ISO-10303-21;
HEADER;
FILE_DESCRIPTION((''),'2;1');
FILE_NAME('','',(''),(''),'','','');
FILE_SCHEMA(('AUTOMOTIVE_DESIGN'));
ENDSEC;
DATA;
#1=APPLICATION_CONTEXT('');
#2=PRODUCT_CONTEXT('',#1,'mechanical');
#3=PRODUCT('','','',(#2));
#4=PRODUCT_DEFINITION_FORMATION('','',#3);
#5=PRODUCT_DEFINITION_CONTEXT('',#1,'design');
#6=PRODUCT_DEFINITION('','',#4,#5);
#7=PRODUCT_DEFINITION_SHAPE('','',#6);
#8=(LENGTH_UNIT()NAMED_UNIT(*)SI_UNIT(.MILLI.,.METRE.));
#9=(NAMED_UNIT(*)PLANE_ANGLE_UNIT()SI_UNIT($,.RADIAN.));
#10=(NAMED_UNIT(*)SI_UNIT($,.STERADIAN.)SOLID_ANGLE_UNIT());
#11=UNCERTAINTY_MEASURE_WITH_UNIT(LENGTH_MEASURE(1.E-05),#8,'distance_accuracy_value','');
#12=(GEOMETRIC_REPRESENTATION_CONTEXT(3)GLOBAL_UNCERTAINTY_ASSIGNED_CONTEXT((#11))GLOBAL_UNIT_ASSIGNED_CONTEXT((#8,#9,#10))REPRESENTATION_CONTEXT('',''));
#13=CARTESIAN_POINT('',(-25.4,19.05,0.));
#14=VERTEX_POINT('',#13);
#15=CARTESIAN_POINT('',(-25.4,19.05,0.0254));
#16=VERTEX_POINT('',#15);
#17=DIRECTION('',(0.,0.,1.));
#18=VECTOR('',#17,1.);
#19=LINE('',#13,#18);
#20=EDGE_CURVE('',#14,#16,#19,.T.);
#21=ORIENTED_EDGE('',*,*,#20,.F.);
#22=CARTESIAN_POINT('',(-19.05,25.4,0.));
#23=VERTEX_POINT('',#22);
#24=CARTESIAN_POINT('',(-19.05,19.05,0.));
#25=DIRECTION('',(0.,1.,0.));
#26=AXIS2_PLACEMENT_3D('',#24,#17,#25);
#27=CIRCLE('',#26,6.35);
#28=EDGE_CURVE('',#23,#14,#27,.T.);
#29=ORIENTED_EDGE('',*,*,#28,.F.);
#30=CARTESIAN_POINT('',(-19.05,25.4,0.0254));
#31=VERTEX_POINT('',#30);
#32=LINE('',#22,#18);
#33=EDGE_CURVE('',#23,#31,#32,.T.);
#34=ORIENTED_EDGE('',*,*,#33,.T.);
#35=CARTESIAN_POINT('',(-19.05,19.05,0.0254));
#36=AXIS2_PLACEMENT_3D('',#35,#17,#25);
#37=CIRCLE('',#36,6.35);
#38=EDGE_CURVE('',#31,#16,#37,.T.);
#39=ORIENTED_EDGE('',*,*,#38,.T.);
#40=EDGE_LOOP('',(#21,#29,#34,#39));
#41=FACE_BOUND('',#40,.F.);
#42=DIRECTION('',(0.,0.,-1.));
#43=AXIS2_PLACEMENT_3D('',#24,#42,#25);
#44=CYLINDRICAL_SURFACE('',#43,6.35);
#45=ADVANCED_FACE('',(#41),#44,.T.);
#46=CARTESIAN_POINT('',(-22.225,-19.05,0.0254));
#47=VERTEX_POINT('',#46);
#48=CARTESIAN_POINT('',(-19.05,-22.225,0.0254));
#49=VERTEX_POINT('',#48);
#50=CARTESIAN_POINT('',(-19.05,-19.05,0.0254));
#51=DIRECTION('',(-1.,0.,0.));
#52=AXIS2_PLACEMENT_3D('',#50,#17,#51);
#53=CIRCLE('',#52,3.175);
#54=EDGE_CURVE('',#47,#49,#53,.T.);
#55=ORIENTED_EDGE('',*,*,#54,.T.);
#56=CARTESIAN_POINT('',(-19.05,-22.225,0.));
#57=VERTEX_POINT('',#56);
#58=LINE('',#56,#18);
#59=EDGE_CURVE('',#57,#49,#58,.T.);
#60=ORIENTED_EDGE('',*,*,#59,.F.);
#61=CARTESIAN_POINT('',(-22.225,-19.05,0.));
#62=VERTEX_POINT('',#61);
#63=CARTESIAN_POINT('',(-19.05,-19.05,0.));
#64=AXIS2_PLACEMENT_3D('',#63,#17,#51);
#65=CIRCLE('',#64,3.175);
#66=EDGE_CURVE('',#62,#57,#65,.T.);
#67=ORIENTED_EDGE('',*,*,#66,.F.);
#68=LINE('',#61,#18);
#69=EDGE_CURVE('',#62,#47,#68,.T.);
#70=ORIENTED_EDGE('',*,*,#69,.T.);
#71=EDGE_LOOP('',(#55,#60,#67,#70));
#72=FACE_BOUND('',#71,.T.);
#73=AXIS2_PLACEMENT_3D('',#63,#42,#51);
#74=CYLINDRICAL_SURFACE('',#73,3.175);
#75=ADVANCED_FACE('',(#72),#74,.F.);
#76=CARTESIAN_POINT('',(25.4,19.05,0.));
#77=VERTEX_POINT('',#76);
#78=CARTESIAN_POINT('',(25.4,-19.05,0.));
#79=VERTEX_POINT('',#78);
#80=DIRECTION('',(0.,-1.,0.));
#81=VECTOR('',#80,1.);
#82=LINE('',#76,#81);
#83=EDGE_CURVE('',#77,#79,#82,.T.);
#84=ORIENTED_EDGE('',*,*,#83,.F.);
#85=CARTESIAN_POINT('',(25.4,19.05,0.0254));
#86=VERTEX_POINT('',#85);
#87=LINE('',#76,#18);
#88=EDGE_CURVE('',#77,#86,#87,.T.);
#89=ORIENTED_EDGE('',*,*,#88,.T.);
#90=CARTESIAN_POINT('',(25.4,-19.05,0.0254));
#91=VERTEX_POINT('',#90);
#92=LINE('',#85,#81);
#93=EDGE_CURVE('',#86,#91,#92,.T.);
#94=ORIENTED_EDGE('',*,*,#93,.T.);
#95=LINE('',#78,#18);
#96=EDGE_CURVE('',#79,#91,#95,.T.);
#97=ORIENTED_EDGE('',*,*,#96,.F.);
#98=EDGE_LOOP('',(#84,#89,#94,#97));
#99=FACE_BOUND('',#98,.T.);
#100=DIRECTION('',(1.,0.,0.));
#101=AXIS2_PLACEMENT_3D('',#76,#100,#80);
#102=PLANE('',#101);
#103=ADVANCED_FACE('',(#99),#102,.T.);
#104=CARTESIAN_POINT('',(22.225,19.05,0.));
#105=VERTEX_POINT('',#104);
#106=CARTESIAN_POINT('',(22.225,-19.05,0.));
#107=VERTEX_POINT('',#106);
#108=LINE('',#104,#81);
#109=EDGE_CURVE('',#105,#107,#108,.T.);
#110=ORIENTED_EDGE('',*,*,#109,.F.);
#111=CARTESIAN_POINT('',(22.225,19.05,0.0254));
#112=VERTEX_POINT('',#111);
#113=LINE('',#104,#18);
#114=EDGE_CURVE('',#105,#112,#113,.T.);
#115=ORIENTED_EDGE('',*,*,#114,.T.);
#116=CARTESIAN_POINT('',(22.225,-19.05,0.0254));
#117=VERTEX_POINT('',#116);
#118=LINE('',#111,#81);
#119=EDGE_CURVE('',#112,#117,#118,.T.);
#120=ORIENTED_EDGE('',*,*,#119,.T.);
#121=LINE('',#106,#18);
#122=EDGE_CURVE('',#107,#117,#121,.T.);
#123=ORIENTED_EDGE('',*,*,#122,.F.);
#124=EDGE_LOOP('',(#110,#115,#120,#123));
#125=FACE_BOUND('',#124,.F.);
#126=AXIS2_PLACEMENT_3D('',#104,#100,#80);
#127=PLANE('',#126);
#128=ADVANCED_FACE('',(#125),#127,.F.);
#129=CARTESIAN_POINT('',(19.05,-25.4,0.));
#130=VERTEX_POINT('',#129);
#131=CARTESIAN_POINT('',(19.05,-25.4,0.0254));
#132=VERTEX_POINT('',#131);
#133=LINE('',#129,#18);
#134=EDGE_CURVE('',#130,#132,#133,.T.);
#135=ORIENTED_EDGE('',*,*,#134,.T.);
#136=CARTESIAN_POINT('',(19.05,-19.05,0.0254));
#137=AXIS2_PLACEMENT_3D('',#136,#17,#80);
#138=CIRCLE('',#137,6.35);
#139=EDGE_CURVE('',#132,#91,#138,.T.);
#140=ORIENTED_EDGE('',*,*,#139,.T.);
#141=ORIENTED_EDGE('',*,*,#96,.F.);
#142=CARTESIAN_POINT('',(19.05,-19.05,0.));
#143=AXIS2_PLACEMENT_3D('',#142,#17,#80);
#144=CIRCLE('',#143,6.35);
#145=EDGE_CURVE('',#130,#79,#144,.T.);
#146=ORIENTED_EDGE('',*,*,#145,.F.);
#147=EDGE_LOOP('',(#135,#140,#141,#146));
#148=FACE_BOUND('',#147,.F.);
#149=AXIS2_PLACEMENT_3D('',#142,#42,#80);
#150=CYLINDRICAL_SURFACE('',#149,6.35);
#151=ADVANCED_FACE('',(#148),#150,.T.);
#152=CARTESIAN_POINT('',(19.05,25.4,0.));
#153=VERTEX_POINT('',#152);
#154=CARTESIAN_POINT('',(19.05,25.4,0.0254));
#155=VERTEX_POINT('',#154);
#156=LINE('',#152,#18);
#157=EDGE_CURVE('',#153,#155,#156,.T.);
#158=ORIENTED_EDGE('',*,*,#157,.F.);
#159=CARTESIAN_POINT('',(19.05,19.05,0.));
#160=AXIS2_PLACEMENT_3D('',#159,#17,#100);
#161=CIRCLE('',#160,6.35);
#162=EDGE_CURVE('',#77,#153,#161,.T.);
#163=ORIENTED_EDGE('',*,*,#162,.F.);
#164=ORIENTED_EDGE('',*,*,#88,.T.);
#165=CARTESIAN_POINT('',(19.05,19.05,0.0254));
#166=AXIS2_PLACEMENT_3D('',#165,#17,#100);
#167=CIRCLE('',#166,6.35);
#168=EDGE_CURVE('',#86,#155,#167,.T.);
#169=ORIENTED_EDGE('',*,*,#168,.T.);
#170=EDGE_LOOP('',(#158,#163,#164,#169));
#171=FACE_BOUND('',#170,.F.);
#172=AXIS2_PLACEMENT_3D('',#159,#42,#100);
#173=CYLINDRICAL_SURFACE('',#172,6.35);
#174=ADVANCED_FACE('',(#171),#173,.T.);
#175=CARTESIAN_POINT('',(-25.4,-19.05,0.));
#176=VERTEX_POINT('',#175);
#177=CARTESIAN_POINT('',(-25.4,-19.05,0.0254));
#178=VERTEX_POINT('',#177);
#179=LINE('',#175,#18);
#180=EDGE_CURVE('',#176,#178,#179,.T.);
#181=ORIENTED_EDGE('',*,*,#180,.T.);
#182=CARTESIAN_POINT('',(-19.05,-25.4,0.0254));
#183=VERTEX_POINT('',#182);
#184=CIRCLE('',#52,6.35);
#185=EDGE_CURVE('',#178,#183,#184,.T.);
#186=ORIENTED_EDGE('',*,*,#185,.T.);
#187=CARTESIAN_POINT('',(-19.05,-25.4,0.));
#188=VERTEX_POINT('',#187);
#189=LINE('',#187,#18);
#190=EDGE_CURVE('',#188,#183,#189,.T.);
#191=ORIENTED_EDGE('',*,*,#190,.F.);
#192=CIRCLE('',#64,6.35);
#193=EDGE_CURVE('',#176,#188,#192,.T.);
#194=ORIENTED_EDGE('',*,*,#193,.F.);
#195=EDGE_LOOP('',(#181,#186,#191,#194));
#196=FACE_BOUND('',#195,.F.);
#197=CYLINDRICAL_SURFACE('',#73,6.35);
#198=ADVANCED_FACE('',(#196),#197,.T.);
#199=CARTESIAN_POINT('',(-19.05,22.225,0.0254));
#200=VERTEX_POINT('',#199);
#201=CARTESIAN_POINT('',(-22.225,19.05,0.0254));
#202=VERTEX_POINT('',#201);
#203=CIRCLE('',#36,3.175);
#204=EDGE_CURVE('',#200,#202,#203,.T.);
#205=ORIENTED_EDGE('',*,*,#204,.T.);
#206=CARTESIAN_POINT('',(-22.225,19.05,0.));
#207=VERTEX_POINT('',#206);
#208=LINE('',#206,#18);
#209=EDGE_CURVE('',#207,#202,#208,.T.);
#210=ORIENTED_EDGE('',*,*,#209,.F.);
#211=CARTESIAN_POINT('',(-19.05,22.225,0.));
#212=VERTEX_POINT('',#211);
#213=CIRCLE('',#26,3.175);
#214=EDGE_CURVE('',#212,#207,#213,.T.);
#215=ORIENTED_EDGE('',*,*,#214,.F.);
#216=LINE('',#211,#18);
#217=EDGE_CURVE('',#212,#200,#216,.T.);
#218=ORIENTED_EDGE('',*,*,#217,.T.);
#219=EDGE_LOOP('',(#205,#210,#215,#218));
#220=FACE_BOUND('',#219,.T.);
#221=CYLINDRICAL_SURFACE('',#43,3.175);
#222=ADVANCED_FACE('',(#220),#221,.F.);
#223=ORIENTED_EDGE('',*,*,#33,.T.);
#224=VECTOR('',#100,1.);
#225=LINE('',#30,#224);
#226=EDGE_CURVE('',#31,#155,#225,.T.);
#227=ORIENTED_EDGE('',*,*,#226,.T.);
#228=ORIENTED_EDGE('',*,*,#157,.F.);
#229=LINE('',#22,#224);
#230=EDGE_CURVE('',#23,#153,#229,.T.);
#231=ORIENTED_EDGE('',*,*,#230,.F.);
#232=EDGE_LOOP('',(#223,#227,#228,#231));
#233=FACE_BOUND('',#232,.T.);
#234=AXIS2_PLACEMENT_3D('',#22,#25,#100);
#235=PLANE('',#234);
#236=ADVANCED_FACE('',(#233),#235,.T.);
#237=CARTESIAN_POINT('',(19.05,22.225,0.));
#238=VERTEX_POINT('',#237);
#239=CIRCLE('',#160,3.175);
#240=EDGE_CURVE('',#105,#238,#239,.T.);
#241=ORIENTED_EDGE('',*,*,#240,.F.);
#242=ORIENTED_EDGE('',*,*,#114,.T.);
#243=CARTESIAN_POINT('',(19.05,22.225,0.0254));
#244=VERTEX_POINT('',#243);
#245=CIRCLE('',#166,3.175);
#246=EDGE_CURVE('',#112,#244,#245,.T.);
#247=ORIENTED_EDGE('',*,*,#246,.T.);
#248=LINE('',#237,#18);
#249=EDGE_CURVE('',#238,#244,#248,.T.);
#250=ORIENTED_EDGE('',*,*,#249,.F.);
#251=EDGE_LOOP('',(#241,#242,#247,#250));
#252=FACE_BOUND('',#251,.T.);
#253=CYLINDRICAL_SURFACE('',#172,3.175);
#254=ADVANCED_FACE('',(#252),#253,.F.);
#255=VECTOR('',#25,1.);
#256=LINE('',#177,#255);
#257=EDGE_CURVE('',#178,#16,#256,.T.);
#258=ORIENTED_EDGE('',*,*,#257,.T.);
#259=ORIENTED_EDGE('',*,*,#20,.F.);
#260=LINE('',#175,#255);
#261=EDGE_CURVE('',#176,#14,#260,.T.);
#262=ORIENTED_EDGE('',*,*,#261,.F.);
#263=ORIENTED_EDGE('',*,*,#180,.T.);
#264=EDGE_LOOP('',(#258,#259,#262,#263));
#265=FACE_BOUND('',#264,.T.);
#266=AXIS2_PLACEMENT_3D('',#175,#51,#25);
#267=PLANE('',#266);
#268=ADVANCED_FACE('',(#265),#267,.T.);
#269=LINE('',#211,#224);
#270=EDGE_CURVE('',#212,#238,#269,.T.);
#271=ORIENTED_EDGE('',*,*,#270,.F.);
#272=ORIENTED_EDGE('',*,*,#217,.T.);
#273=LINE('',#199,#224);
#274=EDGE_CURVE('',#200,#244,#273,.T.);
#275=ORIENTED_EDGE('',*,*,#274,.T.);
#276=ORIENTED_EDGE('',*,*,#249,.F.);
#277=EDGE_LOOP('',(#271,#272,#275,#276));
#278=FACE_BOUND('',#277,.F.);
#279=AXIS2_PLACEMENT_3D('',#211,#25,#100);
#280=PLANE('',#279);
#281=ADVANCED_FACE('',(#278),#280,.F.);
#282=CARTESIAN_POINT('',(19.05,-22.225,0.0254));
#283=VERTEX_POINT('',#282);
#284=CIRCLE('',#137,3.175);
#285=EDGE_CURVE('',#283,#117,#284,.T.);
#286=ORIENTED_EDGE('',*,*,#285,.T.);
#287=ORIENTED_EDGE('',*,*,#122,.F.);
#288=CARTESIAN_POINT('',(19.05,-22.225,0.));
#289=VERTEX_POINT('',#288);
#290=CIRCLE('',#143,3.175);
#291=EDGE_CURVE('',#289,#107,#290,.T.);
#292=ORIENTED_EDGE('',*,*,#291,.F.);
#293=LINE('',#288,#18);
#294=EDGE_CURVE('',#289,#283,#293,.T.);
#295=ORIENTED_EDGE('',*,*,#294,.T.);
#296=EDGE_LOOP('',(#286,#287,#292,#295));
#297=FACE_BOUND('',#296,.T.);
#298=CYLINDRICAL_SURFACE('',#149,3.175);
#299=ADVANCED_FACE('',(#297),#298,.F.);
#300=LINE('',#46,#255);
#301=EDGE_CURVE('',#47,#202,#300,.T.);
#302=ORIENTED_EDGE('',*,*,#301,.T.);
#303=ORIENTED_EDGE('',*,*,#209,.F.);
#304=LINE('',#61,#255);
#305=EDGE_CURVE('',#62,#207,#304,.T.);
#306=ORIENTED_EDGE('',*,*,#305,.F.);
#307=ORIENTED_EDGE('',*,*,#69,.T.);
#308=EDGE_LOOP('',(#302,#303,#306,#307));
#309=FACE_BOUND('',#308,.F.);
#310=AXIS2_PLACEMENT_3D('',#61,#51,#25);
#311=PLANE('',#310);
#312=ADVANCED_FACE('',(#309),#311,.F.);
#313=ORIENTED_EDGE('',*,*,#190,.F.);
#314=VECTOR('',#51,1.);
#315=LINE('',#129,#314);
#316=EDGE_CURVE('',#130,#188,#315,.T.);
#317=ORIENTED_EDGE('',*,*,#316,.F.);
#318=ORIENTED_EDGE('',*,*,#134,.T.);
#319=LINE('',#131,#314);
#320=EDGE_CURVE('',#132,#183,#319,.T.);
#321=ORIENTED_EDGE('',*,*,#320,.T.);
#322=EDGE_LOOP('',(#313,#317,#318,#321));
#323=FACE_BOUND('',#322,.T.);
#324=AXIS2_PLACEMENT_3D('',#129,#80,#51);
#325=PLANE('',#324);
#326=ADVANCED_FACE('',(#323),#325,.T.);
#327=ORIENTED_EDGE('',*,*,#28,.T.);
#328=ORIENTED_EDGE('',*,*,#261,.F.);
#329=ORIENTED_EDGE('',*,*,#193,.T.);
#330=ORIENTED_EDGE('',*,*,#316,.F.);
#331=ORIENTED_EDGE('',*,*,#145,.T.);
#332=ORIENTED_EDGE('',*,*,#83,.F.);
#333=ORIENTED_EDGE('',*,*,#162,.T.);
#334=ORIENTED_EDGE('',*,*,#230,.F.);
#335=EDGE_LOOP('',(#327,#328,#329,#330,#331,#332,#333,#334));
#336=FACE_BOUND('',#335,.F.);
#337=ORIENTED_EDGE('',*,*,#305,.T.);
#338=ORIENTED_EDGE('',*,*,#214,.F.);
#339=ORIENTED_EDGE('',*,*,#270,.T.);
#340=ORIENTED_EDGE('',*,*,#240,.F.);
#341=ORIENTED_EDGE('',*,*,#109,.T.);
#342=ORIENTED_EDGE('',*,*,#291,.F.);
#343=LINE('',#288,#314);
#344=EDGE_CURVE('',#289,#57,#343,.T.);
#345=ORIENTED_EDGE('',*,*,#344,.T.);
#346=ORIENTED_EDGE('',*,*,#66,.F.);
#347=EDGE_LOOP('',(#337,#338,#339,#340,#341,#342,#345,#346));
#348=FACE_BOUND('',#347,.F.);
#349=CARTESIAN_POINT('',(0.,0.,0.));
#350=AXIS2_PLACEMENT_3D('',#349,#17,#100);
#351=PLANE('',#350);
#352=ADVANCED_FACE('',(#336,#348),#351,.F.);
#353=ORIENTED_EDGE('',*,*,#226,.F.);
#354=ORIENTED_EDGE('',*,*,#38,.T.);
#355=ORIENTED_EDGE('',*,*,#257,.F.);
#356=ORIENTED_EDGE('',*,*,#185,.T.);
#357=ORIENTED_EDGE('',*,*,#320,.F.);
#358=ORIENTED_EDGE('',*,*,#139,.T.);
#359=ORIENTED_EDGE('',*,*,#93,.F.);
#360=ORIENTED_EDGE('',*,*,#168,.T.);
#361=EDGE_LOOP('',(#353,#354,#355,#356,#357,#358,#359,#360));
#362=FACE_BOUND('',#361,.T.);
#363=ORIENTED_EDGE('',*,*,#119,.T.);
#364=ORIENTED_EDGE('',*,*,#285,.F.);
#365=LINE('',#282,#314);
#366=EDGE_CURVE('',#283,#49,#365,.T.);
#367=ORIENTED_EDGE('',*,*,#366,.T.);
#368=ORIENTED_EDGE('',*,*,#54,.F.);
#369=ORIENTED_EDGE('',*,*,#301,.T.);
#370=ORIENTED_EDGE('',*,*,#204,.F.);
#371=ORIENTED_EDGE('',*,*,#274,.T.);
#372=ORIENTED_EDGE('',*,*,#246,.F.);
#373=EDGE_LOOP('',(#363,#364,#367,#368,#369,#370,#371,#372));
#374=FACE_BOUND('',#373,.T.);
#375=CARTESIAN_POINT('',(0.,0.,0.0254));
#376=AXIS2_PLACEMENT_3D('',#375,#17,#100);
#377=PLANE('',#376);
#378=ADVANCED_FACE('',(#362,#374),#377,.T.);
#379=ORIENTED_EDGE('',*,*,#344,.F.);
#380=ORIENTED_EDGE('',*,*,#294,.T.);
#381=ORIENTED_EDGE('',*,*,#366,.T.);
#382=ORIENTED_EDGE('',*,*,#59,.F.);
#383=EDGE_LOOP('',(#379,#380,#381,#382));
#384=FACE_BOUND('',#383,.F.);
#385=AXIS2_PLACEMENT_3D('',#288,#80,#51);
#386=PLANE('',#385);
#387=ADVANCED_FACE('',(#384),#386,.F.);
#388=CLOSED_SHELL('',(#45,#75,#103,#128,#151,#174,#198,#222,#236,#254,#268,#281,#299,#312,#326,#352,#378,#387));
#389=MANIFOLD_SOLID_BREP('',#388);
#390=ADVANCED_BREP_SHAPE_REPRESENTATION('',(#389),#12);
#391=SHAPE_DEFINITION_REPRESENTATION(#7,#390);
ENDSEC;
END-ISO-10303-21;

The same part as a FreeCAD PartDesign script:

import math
import FreeCAD as App
import Part
import Sketcher
from FreeCAD import Vector
Q = App.Units.Quantity

doc = App.newDocument("Part")
body = doc.addObject("PartDesign::Body", "Body")

# Sketch on XY plane
sketch1 = body.newObject("Sketcher::SketchObject", "Sketch")
sketch1.AttachmentSupport = (doc.getObject("XY_Plane"), [""])
sketch1.MapMode = "FlatFace"
sketch1.addGeometry(Part.LineSegment(Vector(-25.4, 19.1, 0), Vector(-25.4, -19.1, 0)), False)
sketch1.addGeometry(Part.ArcOfCircle(Part.Circle(Vector(-19.1, -19.1, 0), Vector(0, 0, 1), 6.3), math.radians(180), math.radians(270)), False)
sketch1.addGeometry(Part.LineSegment(Vector(-19.1, -25.4, 0), Vector(19.1, -25.4, 0)), False)
sketch1.addGeometry(Part.ArcOfCircle(Part.Circle(Vector(19.1, -19.1, 0), Vector(0, 0, 1), 6.3), math.radians(-90), math.radians(0)), False)
sketch1.addGeometry(Part.LineSegment(Vector(25.4, -19.1, 0), Vector(25.4, 19.1, 0)), False)
sketch1.addGeometry(Part.ArcOfCircle(Part.Circle(Vector(19.1, 19.1, 0), Vector(0, 0, 1), 6.3), math.radians(0), math.radians(90)), False)
sketch1.addGeometry(Part.LineSegment(Vector(19.1, 25.4, 0), Vector(-19.1, 25.4, 0)), False)
sketch1.addGeometry(Part.ArcOfCircle(Part.Circle(Vector(-19.1, 19.1, 0), Vector(0, 0, 1), 6.3), math.radians(90), math.radians(180)), False)
sketch1.addGeometry(Part.ArcOfCircle(Part.Circle(Vector(-19.1, 19.1, 0), Vector(0, 0, 1), 3.2), math.radians(90), math.radians(180)), False)
sketch1.addGeometry(Part.LineSegment(Vector(-19.1, 22.2, 0), Vector(19.1, 22.2, 0)), False)
sketch1.addGeometry(Part.ArcOfCircle(Part.Circle(Vector(19.1, 19.1, 0), Vector(0, 0, 1), 3.2), math.radians(0), math.radians(90)), False)
sketch1.addGeometry(Part.LineSegment(Vector(22.2, 19.1, 0), Vector(22.2, -19.1, 0)), False)
sketch1.addGeometry(Part.ArcOfCircle(Part.Circle(Vector(19.1, -19.1, 0), Vector(0, 0, 1), 3.2), math.radians(-90), math.radians(0)), False)
sketch1.addGeometry(Part.LineSegment(Vector(19.1, -22.2, 0), Vector(-19.1, -22.2, 0)), False)
sketch1.addGeometry(Part.ArcOfCircle(Part.Circle(Vector(-19.1, -19.1, 0), Vector(0, 0, 1), 3.2), math.radians(180), math.radians(270)), False)
sketch1.addGeometry(Part.LineSegment(Vector(-22.2, -19.1, 0), Vector(-22.2, 19.1, 0)), False)
sketch1.addConstraint(Sketcher.Constraint("Tangent", 0, 2, 1, 1))
sketch1.addConstraint(Sketcher.Constraint("Tangent", 1, 2, 2, 1))
sketch1.addConstraint(Sketcher.Constraint("Tangent", 2, 2, 3, 1))
sketch1.addConstraint(Sketcher.Constraint("Tangent", 3, 2, 4, 1))
sketch1.addConstraint(Sketcher.Constraint("Tangent", 4, 2, 5, 1))
sketch1.addConstraint(Sketcher.Constraint("Tangent", 5, 2, 6, 1))
sketch1.addConstraint(Sketcher.Constraint("Tangent", 6, 2, 7, 1))
sketch1.addConstraint(Sketcher.Constraint("Tangent", 7, 2, 0, 1))
sketch1.addConstraint(Sketcher.Constraint("Tangent", 8, 1, 9, 1))
sketch1.addConstraint(Sketcher.Constraint("Tangent", 9, 2, 10, 2))
sketch1.addConstraint(Sketcher.Constraint("Tangent", 10, 1, 11, 1))
sketch1.addConstraint(Sketcher.Constraint("Tangent", 11, 2, 12, 2))
sketch1.addConstraint(Sketcher.Constraint("Tangent", 12, 1, 13, 1))
sketch1.addConstraint(Sketcher.Constraint("Tangent", 13, 2, 14, 2))
sketch1.addConstraint(Sketcher.Constraint("Tangent", 14, 1, 15, 1))
sketch1.addConstraint(Sketcher.Constraint("Tangent", 15, 2, 8, 2))
sketch1.addConstraint(Sketcher.Constraint("Vertical", 0))
sketch1.addConstraint(Sketcher.Constraint("Horizontal", 2))
sketch1.addConstraint(Sketcher.Constraint("Vertical", 4))
sketch1.addConstraint(Sketcher.Constraint("Horizontal", 6))
sketch1.addConstraint(Sketcher.Constraint("Horizontal", 9))
sketch1.addConstraint(Sketcher.Constraint("Vertical", 11))
sketch1.addConstraint(Sketcher.Constraint("Horizontal", 13))
sketch1.addConstraint(Sketcher.Constraint("Vertical", 15))
sketch1.addConstraint(Sketcher.Constraint("Coincident", 8, 3, 7, 3))
sketch1.addConstraint(Sketcher.Constraint("Coincident", 10, 3, 5, 3))
sketch1.addConstraint(Sketcher.Constraint("Coincident", 12, 3, 3, 3))
sketch1.addConstraint(Sketcher.Constraint("Equal", 1, 3))
sketch1.addConstraint(Sketcher.Constraint("Equal", 3, 5))
sketch1.addConstraint(Sketcher.Constraint("Equal", 5, 7))
sketch1.addConstraint(Sketcher.Constraint("Equal", 12, 14))
sketch1.addConstraint(Sketcher.Constraint("Symmetric", 1, 3, 5, 3, -1, 1))
sketch1.addConstraint(Sketcher.Constraint("Equal", 13, 0))
sketch1.addConstraint(Sketcher.Constraint("Radius", 1, Q("0.25 in")))
sketch1.addConstraint(Sketcher.Constraint("DistanceX", 0, 2, -1, 1, Q("1 in")))
sketch1.addConstraint(Sketcher.Constraint("Radius", 8, Q("0.125 in")))
pad1 = body.newObject("PartDesign::Pad", "Pad")
pad1.Profile = sketch1
pad1.Length = Q("0.001 in")

doc.recompute()
